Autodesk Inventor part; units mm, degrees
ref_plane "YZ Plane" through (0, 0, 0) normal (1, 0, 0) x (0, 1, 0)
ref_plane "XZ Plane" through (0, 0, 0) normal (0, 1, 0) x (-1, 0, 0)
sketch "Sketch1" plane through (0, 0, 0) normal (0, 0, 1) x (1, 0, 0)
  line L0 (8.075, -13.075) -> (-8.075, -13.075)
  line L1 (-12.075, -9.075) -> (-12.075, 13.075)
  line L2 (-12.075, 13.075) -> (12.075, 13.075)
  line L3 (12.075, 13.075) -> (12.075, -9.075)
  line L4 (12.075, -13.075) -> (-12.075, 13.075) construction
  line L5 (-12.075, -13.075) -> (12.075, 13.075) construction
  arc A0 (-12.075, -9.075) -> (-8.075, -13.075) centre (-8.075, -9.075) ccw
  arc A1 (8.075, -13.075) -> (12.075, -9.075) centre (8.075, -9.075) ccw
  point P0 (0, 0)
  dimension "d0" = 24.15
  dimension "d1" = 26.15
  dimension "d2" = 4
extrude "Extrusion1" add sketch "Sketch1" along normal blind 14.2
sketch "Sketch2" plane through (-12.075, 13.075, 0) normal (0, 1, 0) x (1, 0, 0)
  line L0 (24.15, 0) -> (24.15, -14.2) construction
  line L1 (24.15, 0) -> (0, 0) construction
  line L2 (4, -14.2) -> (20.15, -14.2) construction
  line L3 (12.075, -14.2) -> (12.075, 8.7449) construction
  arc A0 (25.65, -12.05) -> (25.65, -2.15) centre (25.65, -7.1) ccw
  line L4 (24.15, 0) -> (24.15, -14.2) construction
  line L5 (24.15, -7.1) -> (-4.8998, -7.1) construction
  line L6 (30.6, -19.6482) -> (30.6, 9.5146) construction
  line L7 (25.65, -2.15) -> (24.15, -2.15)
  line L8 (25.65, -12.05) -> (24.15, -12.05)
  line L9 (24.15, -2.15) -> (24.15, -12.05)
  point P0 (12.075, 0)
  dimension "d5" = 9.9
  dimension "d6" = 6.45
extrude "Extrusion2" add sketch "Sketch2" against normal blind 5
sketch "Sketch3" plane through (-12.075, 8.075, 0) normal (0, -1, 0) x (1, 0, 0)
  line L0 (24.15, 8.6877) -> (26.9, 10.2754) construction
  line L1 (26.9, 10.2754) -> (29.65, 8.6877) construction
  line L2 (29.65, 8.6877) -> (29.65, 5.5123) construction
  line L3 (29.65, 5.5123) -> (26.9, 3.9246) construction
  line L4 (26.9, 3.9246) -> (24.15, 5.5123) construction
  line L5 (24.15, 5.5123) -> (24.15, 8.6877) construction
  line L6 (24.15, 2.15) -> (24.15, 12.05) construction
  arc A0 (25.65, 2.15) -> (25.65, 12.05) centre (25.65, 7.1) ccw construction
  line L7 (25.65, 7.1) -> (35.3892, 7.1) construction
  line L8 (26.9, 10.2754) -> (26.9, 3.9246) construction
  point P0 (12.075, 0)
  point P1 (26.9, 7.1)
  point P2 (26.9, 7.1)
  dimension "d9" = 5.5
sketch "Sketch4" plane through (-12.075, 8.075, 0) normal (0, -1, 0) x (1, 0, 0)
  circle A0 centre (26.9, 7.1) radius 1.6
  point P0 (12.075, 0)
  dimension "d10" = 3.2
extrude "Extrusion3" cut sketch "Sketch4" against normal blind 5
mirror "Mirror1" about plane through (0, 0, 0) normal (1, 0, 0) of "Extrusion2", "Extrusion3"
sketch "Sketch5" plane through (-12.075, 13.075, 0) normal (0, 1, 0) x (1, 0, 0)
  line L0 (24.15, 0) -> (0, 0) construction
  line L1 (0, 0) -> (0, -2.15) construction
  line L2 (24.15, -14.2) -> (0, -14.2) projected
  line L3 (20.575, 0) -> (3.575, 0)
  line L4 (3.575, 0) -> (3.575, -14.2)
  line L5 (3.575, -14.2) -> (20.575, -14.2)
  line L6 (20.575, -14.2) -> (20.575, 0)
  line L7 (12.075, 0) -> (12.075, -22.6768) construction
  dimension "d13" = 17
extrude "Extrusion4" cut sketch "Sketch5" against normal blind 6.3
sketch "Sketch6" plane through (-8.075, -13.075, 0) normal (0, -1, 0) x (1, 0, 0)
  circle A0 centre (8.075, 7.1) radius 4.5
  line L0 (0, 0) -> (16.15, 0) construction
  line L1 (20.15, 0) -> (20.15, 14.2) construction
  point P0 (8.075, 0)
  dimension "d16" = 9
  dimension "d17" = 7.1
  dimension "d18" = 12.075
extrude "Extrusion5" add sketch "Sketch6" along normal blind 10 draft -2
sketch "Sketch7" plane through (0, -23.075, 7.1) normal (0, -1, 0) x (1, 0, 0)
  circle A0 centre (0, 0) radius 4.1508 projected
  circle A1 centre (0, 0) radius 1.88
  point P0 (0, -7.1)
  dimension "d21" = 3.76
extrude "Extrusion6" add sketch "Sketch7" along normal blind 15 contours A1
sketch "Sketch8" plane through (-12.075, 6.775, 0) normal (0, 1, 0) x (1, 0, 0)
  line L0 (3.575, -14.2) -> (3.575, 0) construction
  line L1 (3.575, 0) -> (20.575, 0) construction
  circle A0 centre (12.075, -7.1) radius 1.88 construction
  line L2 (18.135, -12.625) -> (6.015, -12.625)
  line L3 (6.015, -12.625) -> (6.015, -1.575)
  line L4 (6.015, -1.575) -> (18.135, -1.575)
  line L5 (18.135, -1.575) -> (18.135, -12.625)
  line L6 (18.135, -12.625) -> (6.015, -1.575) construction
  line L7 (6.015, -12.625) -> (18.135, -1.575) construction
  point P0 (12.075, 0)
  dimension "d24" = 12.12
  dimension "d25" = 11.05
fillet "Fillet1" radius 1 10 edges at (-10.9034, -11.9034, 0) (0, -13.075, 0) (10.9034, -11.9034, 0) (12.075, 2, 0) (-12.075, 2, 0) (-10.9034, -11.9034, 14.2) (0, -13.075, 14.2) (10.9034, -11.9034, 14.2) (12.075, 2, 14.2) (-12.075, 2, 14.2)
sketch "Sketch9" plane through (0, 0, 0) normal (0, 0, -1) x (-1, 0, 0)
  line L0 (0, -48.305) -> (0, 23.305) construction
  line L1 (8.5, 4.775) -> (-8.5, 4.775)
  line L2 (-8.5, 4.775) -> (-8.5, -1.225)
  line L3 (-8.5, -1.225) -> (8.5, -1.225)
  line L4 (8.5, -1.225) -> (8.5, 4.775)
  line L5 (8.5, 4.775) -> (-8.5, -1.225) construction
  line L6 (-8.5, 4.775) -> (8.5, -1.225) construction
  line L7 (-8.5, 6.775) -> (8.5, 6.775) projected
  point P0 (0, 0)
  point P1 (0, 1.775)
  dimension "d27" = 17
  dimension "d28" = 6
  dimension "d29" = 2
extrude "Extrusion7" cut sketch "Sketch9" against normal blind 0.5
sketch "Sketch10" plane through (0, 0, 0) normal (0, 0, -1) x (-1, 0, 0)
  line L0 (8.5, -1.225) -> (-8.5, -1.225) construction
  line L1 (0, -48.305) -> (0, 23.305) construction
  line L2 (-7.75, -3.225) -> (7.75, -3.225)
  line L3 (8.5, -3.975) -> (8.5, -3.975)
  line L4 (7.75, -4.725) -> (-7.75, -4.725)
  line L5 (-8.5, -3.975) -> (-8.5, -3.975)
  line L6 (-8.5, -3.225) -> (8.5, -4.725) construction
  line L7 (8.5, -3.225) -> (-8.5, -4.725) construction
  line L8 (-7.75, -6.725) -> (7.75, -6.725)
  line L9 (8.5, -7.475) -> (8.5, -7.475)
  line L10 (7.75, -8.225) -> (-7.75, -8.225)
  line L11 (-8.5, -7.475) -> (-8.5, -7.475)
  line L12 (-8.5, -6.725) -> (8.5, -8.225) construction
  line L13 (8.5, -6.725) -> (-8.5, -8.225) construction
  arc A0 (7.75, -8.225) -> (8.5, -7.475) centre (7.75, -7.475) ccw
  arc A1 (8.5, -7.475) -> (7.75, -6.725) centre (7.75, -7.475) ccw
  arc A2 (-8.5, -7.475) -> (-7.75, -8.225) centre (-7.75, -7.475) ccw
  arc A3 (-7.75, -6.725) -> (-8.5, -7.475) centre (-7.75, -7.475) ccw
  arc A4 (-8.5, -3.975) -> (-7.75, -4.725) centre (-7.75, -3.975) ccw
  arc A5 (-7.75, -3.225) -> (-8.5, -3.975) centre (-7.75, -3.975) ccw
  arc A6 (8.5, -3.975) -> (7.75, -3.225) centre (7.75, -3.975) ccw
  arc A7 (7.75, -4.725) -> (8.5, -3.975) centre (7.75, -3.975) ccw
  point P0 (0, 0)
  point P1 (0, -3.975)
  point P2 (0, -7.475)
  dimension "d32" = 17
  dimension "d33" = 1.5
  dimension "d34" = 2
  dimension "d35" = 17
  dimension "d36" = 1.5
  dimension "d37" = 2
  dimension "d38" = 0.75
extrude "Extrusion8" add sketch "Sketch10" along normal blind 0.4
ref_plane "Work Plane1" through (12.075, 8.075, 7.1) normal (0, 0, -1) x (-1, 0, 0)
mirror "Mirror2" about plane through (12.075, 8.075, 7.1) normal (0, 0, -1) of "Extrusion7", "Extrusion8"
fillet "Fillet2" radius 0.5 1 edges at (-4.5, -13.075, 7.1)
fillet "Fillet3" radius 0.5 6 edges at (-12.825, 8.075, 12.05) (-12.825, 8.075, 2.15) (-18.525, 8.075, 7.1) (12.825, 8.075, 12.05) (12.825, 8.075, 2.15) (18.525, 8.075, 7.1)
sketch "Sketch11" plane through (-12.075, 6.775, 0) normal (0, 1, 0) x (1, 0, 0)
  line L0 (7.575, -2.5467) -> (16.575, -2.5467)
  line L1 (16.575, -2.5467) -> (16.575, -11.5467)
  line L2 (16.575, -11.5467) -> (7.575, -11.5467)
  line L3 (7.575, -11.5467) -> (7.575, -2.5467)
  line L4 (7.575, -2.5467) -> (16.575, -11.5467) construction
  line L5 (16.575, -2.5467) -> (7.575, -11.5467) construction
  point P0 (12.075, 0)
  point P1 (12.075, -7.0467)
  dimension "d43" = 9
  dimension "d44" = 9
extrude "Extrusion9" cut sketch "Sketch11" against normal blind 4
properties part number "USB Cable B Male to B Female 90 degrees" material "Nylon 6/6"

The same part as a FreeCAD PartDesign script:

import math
import FreeCAD as App
import Part
import Sketcher
from FreeCAD import Vector


def edges_at(feature, points):
    """Names of the edges that pass closest to the given points."""
    edges = feature.Shape.Edges
    near = lambda p: min(range(len(edges)), key=lambda i: edges[i].distToShape(Part.Vertex(*p))[0])
    return sorted({f"Edge{near(p) + 1}" for p in points})


def add_polygon(sketch, points):
    """Adds a closed chain of lines whose ends are joined by coincident constraints."""
    first, n = sketch.GeometryCount, len(points)
    for a, b in zip(points, points[1:] + points[:1]):
        sketch.addGeometry(Part.LineSegment(App.Vector(*a, 0), App.Vector(*b, 0)), False)
    for i in range(n):
        sketch.addConstraint(Sketcher.Constraint("Coincident", first + i, 2, first + (i + 1) % n, 1))

doc = App.newDocument("Part")
body = doc.addObject("PartDesign::Body", "Body")

sketch1 = body.newObject("Sketcher::SketchObject", "Sketch")
sketch1.AttachmentSupport = (doc.getObject("XY_Plane"), [""])
sketch1.MapMode = "FlatFace"
sketch1.addGeometry([
    Part.LineSegment(Vector(-8.075, -13.075, 0), Vector(8.075, -13.075, 0)),
    Part.ArcOfCircle(Part.Circle(Vector(8.075, -9.075, 0), Vector(0, 0, 1), 4), math.radians(-90), math.radians(0)),
    Part.LineSegment(Vector(12.075, -9.075, 0), Vector(12.075, 13.075, 0)),
    Part.LineSegment(Vector(12.075, 13.075, 0), Vector(-12.075, 13.075, 0)),
    Part.LineSegment(Vector(-12.075, 13.075, 0), Vector(-12.075, -9.075, 0)),
    Part.ArcOfCircle(Part.Circle(Vector(-8.075, -9.075, 0), Vector(0, 0, 1), 4), math.radians(180), math.radians(270)),
], False)
sketch1.addConstraint([
    Sketcher.Constraint("Tangent", 0, 2, 1, 1),
    Sketcher.Constraint("Tangent", 1, 2, 2, 1),
    Sketcher.Constraint("Coincident", 2, 2, 3, 1),
    Sketcher.Constraint("Coincident", 3, 2, 4, 1),
    Sketcher.Constraint("Tangent", 4, 2, 5, 1),
    Sketcher.Constraint("Tangent", 5, 2, 0, 1),
    Sketcher.Constraint("Horizontal", 0),
    Sketcher.Constraint("Vertical", 2),
    Sketcher.Constraint("Horizontal", 3),
    Sketcher.Constraint("Vertical", 4),
    Sketcher.Constraint("Equal", 1, 5),
    Sketcher.Constraint("Radius", 1, 4.0),
    Sketcher.Constraint("DistanceX", 3, 2, 3, 1, 24.15),
    Sketcher.Constraint("DistanceY", 0, 2, 2, 2, 26.15),
    Sketcher.Constraint("DistanceX", -1, 1, 1, 3, 8.075),
    Sketcher.Constraint("DistanceY", 1, 3, -1, 1, 9.075),
])
pad1 = body.newObject("PartDesign::Pad", "Pad")
pad1.Profile = sketch1
pad1.Length = 14.2

sketch2 = body.newObject("Sketcher::SketchObject", "Sketch001")
sketch2.AttachmentSupport = (doc.getObject("XZ_Plane"), [""])
sketch2.MapMode = "FlatFace"
sketch2.AttachmentOffset = App.Placement(Vector(0, 0, -13.075), App.Rotation())
sketch2.addGeometry([
    Part.LineSegment(Vector(12.075, 12.05, 0), Vector(13.575, 12.05, 0)),
    Part.ArcOfCircle(Part.Circle(Vector(13.575, 7.1, 0), Vector(0, 0, 1), 4.95), math.radians(-90), math.radians(90)),
    Part.LineSegment(Vector(13.575, 2.15, 0), Vector(12.075, 2.15, 0)),
    Part.LineSegment(Vector(12.075, 2.15, 0), Vector(12.075, 12.05, 0)),
], False)
sketch2.addConstraint([
    Sketcher.Constraint("Tangent", 0, 2, 1, 2),
    Sketcher.Constraint("Tangent", 1, 1, 2, 1),
    Sketcher.Constraint("Coincident", 2, 2, 3, 1),
    Sketcher.Constraint("Coincident", 3, 2, 0, 1),
    Sketcher.Constraint("Horizontal", 0),
    Sketcher.Constraint("Horizontal", 2),
    Sketcher.Constraint("Vertical", 3),
    Sketcher.Constraint("Radius", 1, 4.95),
    Sketcher.Constraint("DistanceX", 0, 1, 0, 2, 1.5),
    Sketcher.Constraint("DistanceY", -1, 1, 1, 3, 7.1),
    Sketcher.Constraint("DistanceX", -1, 1, 1, 3, 13.575),
])
pad2 = body.newObject("PartDesign::Pad", "Pad001")
pad2.Profile = sketch2
pad2.Length = 5

sketch3 = body.newObject("Sketcher::SketchObject", "Sketch002")
sketch3.AttachmentSupport = (doc.getObject("XZ_Plane"), [""])
sketch3.MapMode = "FlatFace"
sketch3.AttachmentOffset = App.Placement(Vector(0, 0, -8.075), App.Rotation())
sketch3.addGeometry(Part.Circle(Vector(14.825, 7.1, 0), Vector(0, 0, 1), 1.6), False)
sketch3.addConstraint([
    Sketcher.Constraint("Diameter", 0, 3.2),
    Sketcher.Constraint("DistanceY", -1, 1, 0, 3, 7.1),
    Sketcher.Constraint("DistanceX", -1, 1, 0, 3, 14.825),
])
pocket1 = body.newObject("PartDesign::Pocket", "Pocket")
pocket1.Profile = sketch3
pocket1.Length = 5
doc.recompute()

mirrored = body.newObject("PartDesign::Mirrored", "Mirrored")
mirrored.Originals = [pad2, pocket1]
mirrored.MirrorPlane = (doc.getObject("YZ_Plane"), [""])
body.Tip = mirrored

sketch4 = body.newObject("Sketcher::SketchObject", "Sketch003")
sketch4.AttachmentSupport = (doc.getObject("XZ_Plane"), [""])
sketch4.MapMode = "FlatFace"
sketch4.AttachmentOffset = App.Placement(Vector(0, 0, -13.075), App.Rotation())
add_polygon(sketch4, [(-8.5, 14.2), (8.5, 14.2), (8.5, 0), (-8.5, 0)])
sketch4.addConstraint([
    Sketcher.Constraint("Horizontal", 0),
    Sketcher.Constraint("Vertical", 1),
    Sketcher.Constraint("Horizontal", 2),
    Sketcher.Constraint("Vertical", 3),
    Sketcher.Constraint("Symmetric", 1, 2, 2, 2, -1, 1),
    Sketcher.Constraint("DistanceX", 0, 1, 0, 2, 17.0),
    Sketcher.Constraint("DistanceY", 1, 2, 1, 1, 14.2),
])
pocket2 = body.newObject("PartDesign::Pocket", "Pocket001")
pocket2.Profile = sketch4
pocket2.Length = 6.3
pocket2.Reversed = True

sketch5 = body.newObject("Sketcher::SketchObject", "Sketch004")
sketch5.AttachmentSupport = (doc.getObject("XZ_Plane"), [""])
sketch5.MapMode = "FlatFace"
sketch5.AttachmentOffset = App.Placement(Vector(0, 0, 13.075), App.Rotation())
sketch5.addGeometry(Part.Circle(Vector(0, 7.1, 0), Vector(0, 0, 1), 4.5), False)
sketch5.addConstraint([
    Sketcher.Constraint("PointOnObject", 0, 3, -2),
    Sketcher.Constraint("Diameter", 0, 9.0),
    Sketcher.Constraint("DistanceY", -1, 1, 0, 3, 7.1),
])
pad3 = body.newObject("PartDesign::Pad", "Pad002")
pad3.Profile = sketch5
pad3.Length = 10
pad3.TaperAngle = -2

sketch6 = body.newObject("Sketcher::SketchObject", "Sketch005")
sketch6.AttachmentSupport = (doc.getObject("XZ_Plane"), [""])
sketch6.MapMode = "FlatFace"
sketch6.AttachmentOffset = App.Placement(Vector(0, 0, 23.075), App.Rotation())
sketch6.addGeometry(Part.Circle(Vector(0, 7.1, 0), Vector(0, 0, 1), 1.88), False)
sketch6.addConstraint([
    Sketcher.Constraint("PointOnObject", 0, 3, -2),
    Sketcher.Constraint("Diameter", 0, 3.76),
    Sketcher.Constraint("DistanceY", -1, 1, 0, 3, 7.1),
])
pad4 = body.newObject("PartDesign::Pad", "Pad003")
pad4.Profile = sketch6
pad4.Length = 15
doc.recompute()

fillet = body.newObject("PartDesign::Fillet", "Fillet")
fillet.Base = (pad4, edges_at(pad4, [
    (-10.903, -11.903, 0),
    (0, -13.075, 0),
    (10.903, -11.903, 0),
    (12.075, 2, 0),
    (-12.075, 2, 0),
    (-10.903, -11.903, 14.2),
    (0, -13.075, 14.2),
    (10.903, -11.903, 14.2),
    (12.075, 2, 14.2),
    (-12.075, 2, 14.2),
]))
fillet.Radius = 1

sketch7 = body.newObject("Sketcher::SketchObject", "Sketch006")
sketch7.AttachmentSupport = (doc.getObject("XY_Plane"), [""])
sketch7.MapMode = "FlatFace"
add_polygon(sketch7, [(-8.5, -1.225), (-8.5, 4.775), (8.5, 4.775), (8.5, -1.225)])
sketch7.addConstraint([
    Sketcher.Constraint("Vertical", 0),
    Sketcher.Constraint("Horizontal", 1),
    Sketcher.Constraint("Vertical", 2),
    Sketcher.Constraint("Horizontal", 3),
    Sketcher.Constraint("DistanceX", 1, 1, 1, 2, 17.0),
    Sketcher.Constraint("DistanceY", 0, 1, 0, 2, 6.0),
    Sketcher.Constraint("DistanceX", 0, 2, -1, 1, 8.5),
    Sketcher.Constraint("DistanceY", -1, 1, 0, 2, 4.775),
])
pocket3 = body.newObject("PartDesign::Pocket", "Pocket002")
pocket3.Profile = sketch7
pocket3.Length = 0.5
pocket3.Reversed = True

sketch8 = body.newObject("Sketcher::SketchObject", "Sketch007")
sketch8.AttachmentSupport = (doc.getObject("XY_Plane"), [""])
sketch8.MapMode = "FlatFace"
sketch8.addGeometry([
    Part.LineSegment(Vector(-7.75, -3.225, 0), Vector(7.75, -3.225, 0)),
    Part.ArcOfCircle(Part.Circle(Vector(7.75, -3.975, 0), Vector(0, 0, 1), 0.75), math.radians(-90), math.radians(90)),
    Part.LineSegment(Vector(7.75, -4.725, 0), Vector(-7.75, -4.725, 0)),
    Part.ArcOfCircle(Part.Circle(Vector(-7.75, -3.975, 0), Vector(0, 0, 1), 0.75), math.radians(90), math.radians(270)),
    Part.LineSegment(Vector(-7.75, -6.725, 0), Vector(7.75, -6.725, 0)),
    Part.ArcOfCircle(Part.Circle(Vector(7.75, -7.475, 0), Vector(0, 0, 1), 0.75), math.radians(-90), math.radians(90)),
    Part.LineSegment(Vector(7.75, -8.225, 0), Vector(-7.75, -8.225, 0)),
    Part.ArcOfCircle(Part.Circle(Vector(-7.75, -7.475, 0), Vector(0, 0, 1), 0.75), math.radians(90), math.radians(270)),
], False)
sketch8.addConstraint([
    Sketcher.Constraint("Tangent", 0, 2, 1, 2),
    Sketcher.Constraint("Tangent", 1, 1, 2, 1),
    Sketcher.Constraint("Tangent", 2, 2, 3, 2),
    Sketcher.Constraint("Tangent", 3, 1, 0, 1),
    Sketcher.Constraint("Tangent", 4, 2, 5, 2),
    Sketcher.Constraint("Tangent", 5, 1, 6, 1),
    Sketcher.Constraint("Tangent", 6, 2, 7, 2),
    Sketcher.Constraint("Tangent", 7, 1, 4, 1),
    Sketcher.Constraint("Horizontal", 0),
    Sketcher.Constraint("Horizontal", 2),
    Sketcher.Constraint("Horizontal", 4),
    Sketcher.Constraint("Horizontal", 6),
    Sketcher.Constraint("Equal", 3, 5),
    Sketcher.Constraint("Vertical", 1, 3, 5, 3),
    Sketcher.Constraint("Vertical", 3, 3, 7, 3),
    Sketcher.Constraint("Radius", 1, 0.75),
    Sketcher.Constraint("DistanceY", 4, 2, 1, 1, 2.0),
    Sketcher.Constraint("DistanceX", 0, 1, 0, 2, 15.5),
    Sketcher.Constraint("DistanceX", -1, 1, 1, 3, 7.75),
    Sketcher.Constraint("DistanceY", 1, 3, -1, 1, 3.975),
])
pad5 = body.newObject("PartDesign::Pad", "Pad004")
pad5.Profile = sketch8
pad5.Length = 0.4
pad5.Reversed = True
doc.recompute()

datumplane = body.newObject("PartDesign::Plane", "DatumPlane")
datumplane.AttachmentSupport = (doc.getObject("XY_Plane"), [""])
datumplane.MapMode = "FlatFace"
datumplane.AttachmentOffset = App.Placement(Vector(0, 0, 7.1), App.Rotation())
mirrored2 = body.newObject("PartDesign::Mirrored", "Mirrored001")
mirrored2.Originals = [pocket3, pad5]
mirrored2.MirrorPlane = (datumplane, [""])
body.Tip = mirrored2
doc.recompute()

fillet2 = body.newObject("PartDesign::Fillet", "Fillet001")
fillet2.Base = (mirrored2, edges_at(mirrored2, [(-4.5, -13.075, 7.1)]))
fillet2.Radius = 0.5
doc.recompute()

fillet3 = body.newObject("PartDesign::Fillet", "Fillet002")
fillet3.Base = (fillet2, edges_at(fillet2, [
    (-12.825, 8.075, 12.05),
    (-12.825, 8.075, 2.15),
    (-18.525, 8.075, 7.1),
    (12.825, 8.075, 12.05),
    (12.825, 8.075, 2.15),
    (18.525, 8.075, 7.1),
]))
fillet3.Radius = 0.5

sketch9 = body.newObject("Sketcher::SketchObject", "Sketch008")
sketch9.AttachmentSupport = (doc.getObject("XZ_Plane"), [""])
sketch9.MapMode = "FlatFace"
sketch9.AttachmentOffset = App.Placement(Vector(0, 0, -6.775), App.Rotation())
add_polygon(sketch9, [(4.5, 2.5467), (-4.5, 2.5467), (-4.5, 11.5467), (4.5, 11.5467)])
sketch9.addConstraint([
    Sketcher.Constraint("Horizontal", 0),
    Sketcher.Constraint("Vertical", 1),
    Sketcher.Constraint("Horizontal", 2),
    Sketcher.Constraint("Vertical", 3),
    Sketcher.Constraint("Equal", 2, 1),
    Sketcher.Constraint("DistanceX", 0, 2, 0, 1, 9.0),
    Sketcher.Constraint("DistanceX", 0, 2, -1, 1, 4.5),
    Sketcher.Constraint("DistanceY", -1, 1, 0, 2, 2.5467),
])
pocket4 = body.newObject("PartDesign::Pocket", "Pocket003")
pocket4.Profile = sketch9
pocket4.Length = 4
pocket4.Reversed = True

doc.recompute()
